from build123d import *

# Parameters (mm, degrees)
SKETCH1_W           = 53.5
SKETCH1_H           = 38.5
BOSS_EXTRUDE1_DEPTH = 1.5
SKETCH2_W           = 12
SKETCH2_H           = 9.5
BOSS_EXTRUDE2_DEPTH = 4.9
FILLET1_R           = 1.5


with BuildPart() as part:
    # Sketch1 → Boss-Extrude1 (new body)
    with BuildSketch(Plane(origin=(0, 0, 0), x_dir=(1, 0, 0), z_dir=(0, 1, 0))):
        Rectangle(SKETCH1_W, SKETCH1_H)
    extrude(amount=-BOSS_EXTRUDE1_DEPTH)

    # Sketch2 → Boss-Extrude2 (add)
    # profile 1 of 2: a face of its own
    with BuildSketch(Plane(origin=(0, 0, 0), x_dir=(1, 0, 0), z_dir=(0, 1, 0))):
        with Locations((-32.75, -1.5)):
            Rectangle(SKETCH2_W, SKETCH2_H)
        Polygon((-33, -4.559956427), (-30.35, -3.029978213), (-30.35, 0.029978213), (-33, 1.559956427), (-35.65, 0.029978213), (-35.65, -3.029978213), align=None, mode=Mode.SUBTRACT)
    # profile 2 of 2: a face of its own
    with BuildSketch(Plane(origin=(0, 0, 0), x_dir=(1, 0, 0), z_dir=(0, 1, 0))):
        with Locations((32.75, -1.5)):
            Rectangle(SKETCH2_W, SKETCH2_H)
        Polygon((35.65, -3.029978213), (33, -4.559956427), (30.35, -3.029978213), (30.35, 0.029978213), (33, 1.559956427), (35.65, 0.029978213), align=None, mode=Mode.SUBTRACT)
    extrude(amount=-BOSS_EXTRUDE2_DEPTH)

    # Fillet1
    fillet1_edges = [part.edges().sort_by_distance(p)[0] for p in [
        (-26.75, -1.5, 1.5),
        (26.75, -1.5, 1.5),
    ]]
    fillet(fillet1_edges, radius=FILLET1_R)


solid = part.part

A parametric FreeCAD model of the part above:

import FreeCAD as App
import Part
import Sketcher
from FreeCAD import Vector
Q = App.Units.Quantity


def edges_at(feature, points):
    """Names of the edges that pass closest to the given points."""
    edges = feature.Shape.Edges
    near = lambda p: min(range(len(edges)), key=lambda i: edges[i].distToShape(Part.Vertex(*p))[0])
    return sorted({f"Edge{near(p) + 1}" for p in points})

doc = App.newDocument("Part")
body = doc.addObject("PartDesign::Body", "Body")

sketch1 = body.newObject("Sketcher::SketchObject", "Sketch")
sketch1.AttachmentSupport = (doc.getObject("XZ_Plane"), [""])
sketch1.MapMode = "FlatFace"
sketch1.addGeometry([
    Part.LineSegment(Vector(-26.75, -19.25, 0), Vector(-26.75, 19.25, 0)),
    Part.LineSegment(Vector(-26.75, 19.25, 0), Vector(26.75, 19.25, 0)),
    Part.LineSegment(Vector(26.75, 19.25, 0), Vector(26.75, -19.25, 0)),
    Part.LineSegment(Vector(26.75, -19.25, 0), Vector(-26.75, -19.25, 0)),
], False)
sketch1.addConstraint([
    Sketcher.Constraint("Coincident", 0, 2, 1, 1),
    Sketcher.Constraint("Coincident", 1, 2, 2, 1),
    Sketcher.Constraint("Coincident", 2, 2, 3, 1),
    Sketcher.Constraint("Coincident", 3, 2, 0, 1),
    Sketcher.Constraint("Vertical", 0),
    Sketcher.Constraint("Horizontal", 1),
    Sketcher.Constraint("Vertical", 2),
    Sketcher.Constraint("Horizontal", 3),
    Sketcher.Constraint("Symmetric", 0, 2, 2, 2, -1, 1),
    Sketcher.Constraint("DistanceX", 1, 1, 1, 2, 53.5),
    Sketcher.Constraint("DistanceY", 0, 1, 0, 2, 38.5),
])
pad1 = body.newObject("PartDesign::Pad", "Pad")
pad1.Profile = sketch1
pad1.Length = 1.5

sketch2 = body.newObject("Sketcher::SketchObject", "Sketch001")
sketch2.AttachmentSupport = (doc.getObject("XZ_Plane"), [""])
sketch2.MapMode = "FlatFace"
sketch2.addGeometry([
    Part.LineSegment(Vector(-38.75, -3.25, 0), Vector(-38.75, 6.25, 0)),
    Part.LineSegment(Vector(-38.75, 6.25, 0), Vector(-26.75, 6.25, 0)),
    Part.LineSegment(Vector(-26.75, 6.25, 0), Vector(-26.75, -3.25, 0)),
    Part.LineSegment(Vector(-26.75, -3.25, 0), Vector(-38.75, -3.25, 0)),
    Part.LineSegment(Vector(-30.35, 3.029978, 0), Vector(-33, 4.559956, 0)),
    Part.LineSegment(Vector(-33, 4.559956, 0), Vector(-35.65, 3.029978, 0)),
    Part.LineSegment(Vector(-35.65, 3.029978, 0), Vector(-35.65, -0.029978, 0)),
    Part.LineSegment(Vector(-35.65, -0.029978, 0), Vector(-33, -1.559956, 0)),
    Part.LineSegment(Vector(-33, -1.559956, 0), Vector(-30.35, -0.029978, 0)),
    Part.LineSegment(Vector(-30.35, -0.029978, 0), Vector(-30.35, 3.029978, 0)),
    Part.LineSegment(Vector(26.75, -3.25, 0), Vector(26.75, 6.25, 0)),
    Part.LineSegment(Vector(26.75, 6.25, 0), Vector(38.75, 6.25, 0)),
    Part.LineSegment(Vector(38.75, 6.25, 0), Vector(38.75, -3.25, 0)),
    Part.LineSegment(Vector(38.75, -3.25, 0), Vector(26.75, -3.25, 0)),
    Part.LineSegment(Vector(35.65, -0.029978, 0), Vector(35.65, 3.029978, 0)),
    Part.LineSegment(Vector(35.65, 3.029978, 0), Vector(33, 4.559956, 0)),
    Part.LineSegment(Vector(33, 4.559956, 0), Vector(30.35, 3.029978, 0)),
    Part.LineSegment(Vector(30.35, 3.029978, 0), Vector(30.35, -0.029978, 0)),
    Part.LineSegment(Vector(30.35, -0.029978, 0), Vector(33, -1.559956, 0)),
    Part.LineSegment(Vector(33, -1.559956, 0), Vector(35.65, -0.029978, 0)),
], False)
sketch2.addConstraint([
    Sketcher.Constraint("Coincident", 0, 2, 1, 1),
    Sketcher.Constraint("Coincident", 1, 2, 2, 1),
    Sketcher.Constraint("Coincident", 2, 2, 3, 1),
    Sketcher.Constraint("Coincident", 3, 2, 0, 1),
    Sketcher.Constraint("Coincident", 4, 2, 5, 1),
    Sketcher.Constraint("Coincident", 5, 2, 6, 1),
    Sketcher.Constraint("Coincident", 6, 2, 7, 1),
    Sketcher.Constraint("Coincident", 7, 2, 8, 1),
    Sketcher.Constraint("Coincident", 8, 2, 9, 1),
    Sketcher.Constraint("Coincident", 9, 2, 4, 1),
    Sketcher.Constraint("Coincident", 10, 2, 11, 1),
    Sketcher.Constraint("Coincident", 11, 2, 12, 1),
    Sketcher.Constraint("Coincident", 12, 2, 13, 1),
    Sketcher.Constraint("Coincident", 13, 2, 10, 1),
    Sketcher.Constraint("Coincident", 14, 2, 15, 1),
    Sketcher.Constraint("Coincident", 15, 2, 16, 1),
    Sketcher.Constraint("Coincident", 16, 2, 17, 1),
    Sketcher.Constraint("Coincident", 17, 2, 18, 1),
    Sketcher.Constraint("Coincident", 18, 2, 19, 1),
    Sketcher.Constraint("Coincident", 19, 2, 14, 1),
    Sketcher.Constraint("Vertical", 0),
    Sketcher.Constraint("Horizontal", 1),
    Sketcher.Constraint("Vertical", 2),
    Sketcher.Constraint("Horizontal", 3),
    Sketcher.Constraint("Vertical", 6),
    Sketcher.Constraint("Vertical", 9),
    Sketcher.Constraint("Vertical", 10),
    Sketcher.Constraint("Horizontal", 11),
    Sketcher.Constraint("Vertical", 12),
    Sketcher.Constraint("Horizontal", 13),
    Sketcher.Constraint("Vertical", 14),
    Sketcher.Constraint("Vertical", 17),
    Sketcher.Constraint("Symmetric", 1, 2, 10, 2, -2),
    Sketcher.Constraint("Symmetric", 3, 2, 12, 2, -2),
    Sketcher.Constraint("Symmetric", 5, 2, 14, 2, -2),
    Sketcher.Constraint("Symmetric", 4, 2, 15, 2, -2),
    Sketcher.Constraint("Symmetric", 9, 2, 16, 2, -2),
    Sketcher.Constraint("Symmetric", 7, 2, 18, 2, -2),
    Sketcher.Constraint("Parallel", 4, 7),
    Sketcher.Constraint("Parallel", 5, 8),
    Sketcher.Constraint("Parallel", 7, 15),
    Sketcher.Constraint("Parallel", 15, 18),
    Sketcher.Constraint("Parallel", 16, 19),
    Sketcher.Constraint("Horizontal", 6, 2, 8, 2),
    Sketcher.Constraint("Horizontal", 5, 2, 9, 2),
    Sketcher.Constraint("DistanceX", 1, 1, 1, 2, 12.0),
    Sketcher.Constraint("Angle", 4, Q("150 deg")),
    Sketcher.Constraint("DistanceY", 0, 1, 0, 2, 9.5),
    Sketcher.Constraint("DistanceX", 4, 2, -1, 1, 33.0),
    Sketcher.Constraint("DistanceX", 0, 2, 5, 2, 3.1),
    Sketcher.Constraint("DistanceX", 8, 2, 2, 2, 3.6),
    Sketcher.Constraint("DistanceY", -1, 1, 0, 2, 6.25),
    Sketcher.Constraint("DistanceY", 6, 2, 6, 1, 3.059956),
    Sketcher.Constraint("DistanceY", -1, 1, 5, 2, 3.029978),
])
pad2 = body.newObject("PartDesign::Pad", "Pad001")
pad2.Profile = sketch2
pad2.Length = 4.9
doc.recompute()

fillet = body.newObject("PartDesign::Fillet", "Fillet")
fillet.Base = (pad2, edges_at(pad2, [(-26.75, -1.5, 1.5), (26.75, -1.5, 1.5)]))
fillet.Radius = 1.5

doc.recompute()
